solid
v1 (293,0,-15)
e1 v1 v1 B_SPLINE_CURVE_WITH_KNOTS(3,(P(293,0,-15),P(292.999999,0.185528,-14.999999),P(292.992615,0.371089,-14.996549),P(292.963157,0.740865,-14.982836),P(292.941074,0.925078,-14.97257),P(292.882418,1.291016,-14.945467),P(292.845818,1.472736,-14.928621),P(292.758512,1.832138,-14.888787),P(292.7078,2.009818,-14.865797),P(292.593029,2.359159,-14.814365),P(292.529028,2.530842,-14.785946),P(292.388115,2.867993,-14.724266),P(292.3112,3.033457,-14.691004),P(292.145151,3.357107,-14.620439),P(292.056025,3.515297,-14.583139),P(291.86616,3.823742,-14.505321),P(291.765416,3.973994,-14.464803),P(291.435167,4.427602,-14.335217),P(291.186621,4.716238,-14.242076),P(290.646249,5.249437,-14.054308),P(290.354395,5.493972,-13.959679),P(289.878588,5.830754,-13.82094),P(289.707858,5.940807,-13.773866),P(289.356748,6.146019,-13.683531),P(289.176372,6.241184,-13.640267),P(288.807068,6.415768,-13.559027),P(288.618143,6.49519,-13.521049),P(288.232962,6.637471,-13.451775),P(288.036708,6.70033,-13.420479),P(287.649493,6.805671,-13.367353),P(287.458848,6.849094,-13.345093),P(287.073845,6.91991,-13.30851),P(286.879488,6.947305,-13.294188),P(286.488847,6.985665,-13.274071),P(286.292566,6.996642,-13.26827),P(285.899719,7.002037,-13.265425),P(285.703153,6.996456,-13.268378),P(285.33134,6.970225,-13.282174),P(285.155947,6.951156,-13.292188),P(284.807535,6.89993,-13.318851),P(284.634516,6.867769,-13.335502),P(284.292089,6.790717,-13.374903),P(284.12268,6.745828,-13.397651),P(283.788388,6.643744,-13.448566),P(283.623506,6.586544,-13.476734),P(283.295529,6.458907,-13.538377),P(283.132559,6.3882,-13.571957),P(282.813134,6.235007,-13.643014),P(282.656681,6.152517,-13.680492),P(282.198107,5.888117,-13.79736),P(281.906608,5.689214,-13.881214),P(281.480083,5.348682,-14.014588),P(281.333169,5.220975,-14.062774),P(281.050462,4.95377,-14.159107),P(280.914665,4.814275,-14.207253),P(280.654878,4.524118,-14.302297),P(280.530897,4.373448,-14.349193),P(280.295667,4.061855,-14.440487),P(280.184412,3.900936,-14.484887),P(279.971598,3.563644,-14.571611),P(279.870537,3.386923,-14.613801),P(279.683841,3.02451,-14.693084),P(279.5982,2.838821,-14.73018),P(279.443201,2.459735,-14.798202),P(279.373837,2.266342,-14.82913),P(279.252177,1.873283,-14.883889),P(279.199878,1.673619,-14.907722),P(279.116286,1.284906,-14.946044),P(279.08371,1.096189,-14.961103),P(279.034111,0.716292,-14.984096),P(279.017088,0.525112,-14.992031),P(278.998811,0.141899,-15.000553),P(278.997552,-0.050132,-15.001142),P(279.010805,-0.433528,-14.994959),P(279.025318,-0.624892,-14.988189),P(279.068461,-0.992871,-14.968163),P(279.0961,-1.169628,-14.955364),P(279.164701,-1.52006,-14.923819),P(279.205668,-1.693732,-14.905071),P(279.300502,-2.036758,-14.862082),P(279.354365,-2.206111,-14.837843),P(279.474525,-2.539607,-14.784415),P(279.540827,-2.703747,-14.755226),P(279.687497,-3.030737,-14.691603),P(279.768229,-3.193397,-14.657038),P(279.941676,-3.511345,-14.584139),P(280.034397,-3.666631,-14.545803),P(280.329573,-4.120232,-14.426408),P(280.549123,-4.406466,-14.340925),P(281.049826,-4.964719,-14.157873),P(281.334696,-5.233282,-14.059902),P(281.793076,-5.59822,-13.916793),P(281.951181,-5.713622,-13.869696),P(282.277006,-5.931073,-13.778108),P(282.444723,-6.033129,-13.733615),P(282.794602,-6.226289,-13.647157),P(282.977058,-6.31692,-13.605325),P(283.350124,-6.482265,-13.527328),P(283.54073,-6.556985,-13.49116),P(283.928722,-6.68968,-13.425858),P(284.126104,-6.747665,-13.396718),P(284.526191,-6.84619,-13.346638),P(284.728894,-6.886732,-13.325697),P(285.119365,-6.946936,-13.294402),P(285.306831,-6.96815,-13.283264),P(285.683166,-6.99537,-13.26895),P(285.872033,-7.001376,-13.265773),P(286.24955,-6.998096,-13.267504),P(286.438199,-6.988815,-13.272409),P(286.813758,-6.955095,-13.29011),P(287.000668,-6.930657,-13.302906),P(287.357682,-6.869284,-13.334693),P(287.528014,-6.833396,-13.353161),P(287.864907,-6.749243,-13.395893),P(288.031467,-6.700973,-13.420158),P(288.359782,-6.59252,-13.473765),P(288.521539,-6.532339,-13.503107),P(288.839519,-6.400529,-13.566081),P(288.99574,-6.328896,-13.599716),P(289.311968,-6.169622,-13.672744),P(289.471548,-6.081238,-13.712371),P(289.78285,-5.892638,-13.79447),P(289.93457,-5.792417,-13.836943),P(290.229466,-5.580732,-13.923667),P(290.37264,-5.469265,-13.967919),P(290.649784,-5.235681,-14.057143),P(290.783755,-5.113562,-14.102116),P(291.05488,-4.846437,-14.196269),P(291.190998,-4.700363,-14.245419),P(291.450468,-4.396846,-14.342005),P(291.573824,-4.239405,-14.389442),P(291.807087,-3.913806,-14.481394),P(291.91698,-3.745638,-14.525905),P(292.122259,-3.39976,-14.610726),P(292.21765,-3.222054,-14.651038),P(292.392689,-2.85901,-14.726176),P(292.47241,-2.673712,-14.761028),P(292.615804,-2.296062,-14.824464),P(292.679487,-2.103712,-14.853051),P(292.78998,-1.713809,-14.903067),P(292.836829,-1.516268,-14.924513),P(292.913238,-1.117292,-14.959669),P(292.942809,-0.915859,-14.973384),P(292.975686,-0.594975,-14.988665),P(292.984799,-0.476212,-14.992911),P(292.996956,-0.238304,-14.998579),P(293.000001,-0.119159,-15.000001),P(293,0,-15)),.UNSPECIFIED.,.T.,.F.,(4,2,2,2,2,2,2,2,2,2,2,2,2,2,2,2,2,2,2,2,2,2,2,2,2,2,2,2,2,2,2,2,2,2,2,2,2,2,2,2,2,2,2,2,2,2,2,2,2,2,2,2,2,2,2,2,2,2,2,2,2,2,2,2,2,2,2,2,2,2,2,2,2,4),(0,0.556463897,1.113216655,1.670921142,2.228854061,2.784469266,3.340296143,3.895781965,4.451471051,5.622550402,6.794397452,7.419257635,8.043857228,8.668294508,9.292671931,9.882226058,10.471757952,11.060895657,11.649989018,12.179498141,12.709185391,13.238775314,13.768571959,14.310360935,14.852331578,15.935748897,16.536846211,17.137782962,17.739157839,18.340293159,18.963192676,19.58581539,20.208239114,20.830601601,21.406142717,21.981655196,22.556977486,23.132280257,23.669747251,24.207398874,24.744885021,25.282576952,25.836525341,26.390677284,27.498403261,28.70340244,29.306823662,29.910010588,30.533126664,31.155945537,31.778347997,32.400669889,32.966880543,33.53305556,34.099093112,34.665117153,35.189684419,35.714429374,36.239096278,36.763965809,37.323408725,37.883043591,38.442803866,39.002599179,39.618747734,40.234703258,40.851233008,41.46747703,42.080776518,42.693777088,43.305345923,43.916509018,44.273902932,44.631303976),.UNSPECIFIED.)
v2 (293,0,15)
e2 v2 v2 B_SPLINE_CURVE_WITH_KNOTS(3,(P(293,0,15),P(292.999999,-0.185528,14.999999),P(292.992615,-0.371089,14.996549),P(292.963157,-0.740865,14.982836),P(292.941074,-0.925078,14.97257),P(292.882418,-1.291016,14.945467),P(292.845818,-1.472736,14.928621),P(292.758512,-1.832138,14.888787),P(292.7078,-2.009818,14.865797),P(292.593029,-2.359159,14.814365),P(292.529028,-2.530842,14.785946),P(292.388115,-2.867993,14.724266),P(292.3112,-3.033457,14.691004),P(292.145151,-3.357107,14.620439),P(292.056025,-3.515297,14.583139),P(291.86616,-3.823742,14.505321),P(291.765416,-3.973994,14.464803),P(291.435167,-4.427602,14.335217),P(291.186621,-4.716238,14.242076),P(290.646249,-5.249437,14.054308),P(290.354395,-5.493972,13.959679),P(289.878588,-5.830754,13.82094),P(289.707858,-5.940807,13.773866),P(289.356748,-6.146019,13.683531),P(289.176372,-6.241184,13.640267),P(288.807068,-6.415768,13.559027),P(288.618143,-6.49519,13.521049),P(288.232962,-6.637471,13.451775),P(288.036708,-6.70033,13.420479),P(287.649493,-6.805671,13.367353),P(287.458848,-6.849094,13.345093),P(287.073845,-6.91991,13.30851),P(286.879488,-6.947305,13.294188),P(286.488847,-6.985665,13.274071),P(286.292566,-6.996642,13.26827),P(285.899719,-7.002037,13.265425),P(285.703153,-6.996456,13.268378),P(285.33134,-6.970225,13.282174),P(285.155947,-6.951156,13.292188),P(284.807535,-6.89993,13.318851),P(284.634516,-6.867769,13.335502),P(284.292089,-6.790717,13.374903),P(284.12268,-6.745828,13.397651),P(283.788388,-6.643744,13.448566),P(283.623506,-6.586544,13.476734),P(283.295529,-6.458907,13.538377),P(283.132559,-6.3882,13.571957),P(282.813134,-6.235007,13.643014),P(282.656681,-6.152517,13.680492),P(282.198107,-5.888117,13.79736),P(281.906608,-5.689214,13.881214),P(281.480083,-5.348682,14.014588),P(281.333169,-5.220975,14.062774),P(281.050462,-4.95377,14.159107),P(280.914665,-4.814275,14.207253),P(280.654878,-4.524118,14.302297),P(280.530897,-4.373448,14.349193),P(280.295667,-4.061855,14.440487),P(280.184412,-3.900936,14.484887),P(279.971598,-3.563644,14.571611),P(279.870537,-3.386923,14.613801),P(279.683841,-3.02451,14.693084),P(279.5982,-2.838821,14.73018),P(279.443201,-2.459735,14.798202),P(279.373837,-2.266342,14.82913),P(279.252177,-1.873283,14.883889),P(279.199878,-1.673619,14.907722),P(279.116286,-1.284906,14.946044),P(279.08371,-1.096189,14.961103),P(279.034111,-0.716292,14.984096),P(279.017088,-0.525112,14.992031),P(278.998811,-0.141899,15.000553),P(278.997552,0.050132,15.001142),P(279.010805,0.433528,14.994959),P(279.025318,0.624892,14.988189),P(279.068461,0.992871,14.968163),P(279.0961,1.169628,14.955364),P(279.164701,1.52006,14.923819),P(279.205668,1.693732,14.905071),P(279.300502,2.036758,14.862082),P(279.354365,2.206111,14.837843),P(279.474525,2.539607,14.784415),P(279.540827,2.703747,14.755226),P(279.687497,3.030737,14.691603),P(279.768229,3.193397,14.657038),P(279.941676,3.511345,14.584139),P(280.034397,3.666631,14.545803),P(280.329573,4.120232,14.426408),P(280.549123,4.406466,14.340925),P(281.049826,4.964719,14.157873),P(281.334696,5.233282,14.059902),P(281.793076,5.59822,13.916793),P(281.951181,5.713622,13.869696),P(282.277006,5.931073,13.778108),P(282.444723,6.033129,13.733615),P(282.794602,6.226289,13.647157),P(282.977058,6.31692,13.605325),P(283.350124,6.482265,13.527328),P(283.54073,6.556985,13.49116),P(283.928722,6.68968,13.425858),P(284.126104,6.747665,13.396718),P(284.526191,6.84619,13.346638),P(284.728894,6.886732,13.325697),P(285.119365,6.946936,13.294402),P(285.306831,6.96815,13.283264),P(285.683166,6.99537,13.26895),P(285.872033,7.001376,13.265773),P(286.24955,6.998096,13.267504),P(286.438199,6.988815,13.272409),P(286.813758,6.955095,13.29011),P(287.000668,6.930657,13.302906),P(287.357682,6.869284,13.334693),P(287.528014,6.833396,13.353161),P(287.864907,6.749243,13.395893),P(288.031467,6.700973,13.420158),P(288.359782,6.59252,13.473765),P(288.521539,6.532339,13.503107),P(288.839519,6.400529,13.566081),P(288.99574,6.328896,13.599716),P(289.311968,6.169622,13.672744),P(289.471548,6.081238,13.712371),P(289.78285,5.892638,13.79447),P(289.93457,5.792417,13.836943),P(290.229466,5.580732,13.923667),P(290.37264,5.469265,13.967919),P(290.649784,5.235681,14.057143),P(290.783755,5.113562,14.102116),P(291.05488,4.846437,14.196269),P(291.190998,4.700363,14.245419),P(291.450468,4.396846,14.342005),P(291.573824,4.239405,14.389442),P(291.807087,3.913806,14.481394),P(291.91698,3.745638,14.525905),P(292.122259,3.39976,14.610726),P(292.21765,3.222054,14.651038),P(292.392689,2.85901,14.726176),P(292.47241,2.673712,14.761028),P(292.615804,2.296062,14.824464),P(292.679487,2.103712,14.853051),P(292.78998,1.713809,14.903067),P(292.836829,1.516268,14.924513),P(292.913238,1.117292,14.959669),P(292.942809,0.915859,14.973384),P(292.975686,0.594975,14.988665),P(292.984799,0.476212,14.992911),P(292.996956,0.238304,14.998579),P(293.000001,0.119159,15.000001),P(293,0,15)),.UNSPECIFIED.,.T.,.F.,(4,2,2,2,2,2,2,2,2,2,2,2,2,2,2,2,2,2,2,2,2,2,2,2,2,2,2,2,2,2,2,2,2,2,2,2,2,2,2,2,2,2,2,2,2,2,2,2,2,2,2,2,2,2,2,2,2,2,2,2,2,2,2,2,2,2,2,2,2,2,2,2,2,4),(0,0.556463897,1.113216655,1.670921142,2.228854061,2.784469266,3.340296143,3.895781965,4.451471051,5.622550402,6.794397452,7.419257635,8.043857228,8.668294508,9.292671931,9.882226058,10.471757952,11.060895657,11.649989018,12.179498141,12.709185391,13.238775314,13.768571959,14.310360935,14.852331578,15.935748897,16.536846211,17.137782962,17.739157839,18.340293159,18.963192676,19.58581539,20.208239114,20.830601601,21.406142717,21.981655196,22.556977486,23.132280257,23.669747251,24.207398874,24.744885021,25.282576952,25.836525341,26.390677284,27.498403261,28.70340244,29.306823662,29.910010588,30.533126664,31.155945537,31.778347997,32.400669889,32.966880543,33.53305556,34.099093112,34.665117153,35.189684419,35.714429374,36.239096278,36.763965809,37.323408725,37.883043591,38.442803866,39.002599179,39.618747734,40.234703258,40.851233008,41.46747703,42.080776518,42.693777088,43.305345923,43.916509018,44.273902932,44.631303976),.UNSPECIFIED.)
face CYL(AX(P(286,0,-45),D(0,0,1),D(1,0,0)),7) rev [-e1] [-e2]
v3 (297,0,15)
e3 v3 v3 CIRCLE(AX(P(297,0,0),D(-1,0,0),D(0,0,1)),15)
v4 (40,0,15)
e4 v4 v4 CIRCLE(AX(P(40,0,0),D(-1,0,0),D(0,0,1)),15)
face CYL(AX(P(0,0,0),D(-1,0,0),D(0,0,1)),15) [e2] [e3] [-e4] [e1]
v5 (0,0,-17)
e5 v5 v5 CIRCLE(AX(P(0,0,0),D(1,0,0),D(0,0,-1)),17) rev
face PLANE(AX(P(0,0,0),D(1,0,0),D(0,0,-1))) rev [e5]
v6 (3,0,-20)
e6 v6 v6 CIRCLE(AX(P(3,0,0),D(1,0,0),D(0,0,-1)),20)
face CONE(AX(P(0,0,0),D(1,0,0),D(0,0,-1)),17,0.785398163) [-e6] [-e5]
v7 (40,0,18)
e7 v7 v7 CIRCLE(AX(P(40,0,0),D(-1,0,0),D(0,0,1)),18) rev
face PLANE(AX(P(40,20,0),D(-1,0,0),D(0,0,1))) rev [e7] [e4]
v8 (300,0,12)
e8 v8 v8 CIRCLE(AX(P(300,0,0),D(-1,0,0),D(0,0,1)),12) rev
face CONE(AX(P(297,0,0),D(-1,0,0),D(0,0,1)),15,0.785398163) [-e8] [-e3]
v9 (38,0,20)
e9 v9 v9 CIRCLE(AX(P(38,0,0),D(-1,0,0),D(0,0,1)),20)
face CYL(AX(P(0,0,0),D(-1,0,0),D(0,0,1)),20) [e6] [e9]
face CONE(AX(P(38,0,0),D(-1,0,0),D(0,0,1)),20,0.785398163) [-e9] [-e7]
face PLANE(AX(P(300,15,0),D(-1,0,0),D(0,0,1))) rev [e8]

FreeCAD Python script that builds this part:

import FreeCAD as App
import Part
import Sketcher


def edges_at(feature, points):
    """Names of the edges that pass closest to the given points."""
    edges = feature.Shape.Edges
    near = lambda p: min(range(len(edges)), key=lambda i: edges[i].distToShape(Part.Vertex(*p))[0])
    return sorted({f"Edge{near(p) + 1}" for p in points})


def add_polygon(sketch, points):
    """Adds a closed chain of lines whose ends are joined by coincident constraints."""
    first, n = sketch.GeometryCount, len(points)
    for a, b in zip(points, points[1:] + points[:1]):
        sketch.addGeometry(Part.LineSegment(App.Vector(*a, 0), App.Vector(*b, 0)), False)
    for i in range(n):
        sketch.addConstraint(Sketcher.Constraint("Coincident", first + i, 2, first + (i + 1) % n, 1))

doc = App.newDocument("Part")
params = doc.addObject("Spreadsheet::Sheet", "Params")
for row, (alias, value) in enumerate([
    ("sketch1_width", "300 mm"),
    ("sketch1_width2", "260 mm"),
    ("sketch1_height", "20 mm"),
    ("sketch1_height2", "15 mm"),
    ("revolution_angle", "360 deg"),
    ("chamfer_size", "3 mm"),
    ("chamfer2_size", "3 mm"),
    ("sketch2_diameter", "14 mm"),
    ("pocket1_length", "90 mm"),
    ("chamfer3_size", "2 mm"),
], start=1):
    params.set(f"A{row}", alias)
    params.set(f"B{row}", "=" + value)
    params.setAlias(f"B{row}", alias)

body = doc.addObject("PartDesign::Body", "Body")

# Sketch on XY plane
sketch1 = doc.addObject("Sketcher::SketchObject", "Sketch")
body.addObject(sketch1)
sketch1.AttachmentSupport = (doc.XY_Plane, [""])
sketch1.MapMode = "FlatFace"
add_polygon(sketch1, [(0, 20), (0, 0), (300, 0), (300, 15), (40, 15), (40, 20)])  # lines 0-5
sketch1.addConstraint(Sketcher.Constraint("Vertical", 0))
sketch1.addConstraint(Sketcher.Constraint("Horizontal", 1))
sketch1.addConstraint(Sketcher.Constraint("Vertical", 2))
sketch1.addConstraint(Sketcher.Constraint("Horizontal", 3))
sketch1.addConstraint(Sketcher.Constraint("Vertical", 4))
sketch1.addConstraint(Sketcher.Constraint("Horizontal", 5))
sketch1.addConstraint(Sketcher.Constraint("Coincident", 0, 2, -1, 1))
sketch1.addConstraint(Sketcher.Constraint("DistanceX", 1, 1, 1, 2, 300.0))
sketch1.addConstraint(Sketcher.Constraint("DistanceX", 3, 2, 3, 1, 260.0))
sketch1.addConstraint(Sketcher.Constraint("DistanceY", 0, 2, 0, 1, 20.0))
sketch1.addConstraint(Sketcher.Constraint("DistanceY", 2, 1, 2, 2, 15.0))
sketch1.setExpression("Constraints[13]", "Params.sketch1_width")
sketch1.setExpression("Constraints[14]", "Params.sketch1_width2")
sketch1.setExpression("Constraints[15]", "Params.sketch1_height")
sketch1.setExpression("Constraints[16]", "Params.sketch1_height2")
revolution = doc.addObject("PartDesign::Revolution", "Revolution")
body.addObject(revolution)
revolution.Profile = sketch1
revolution.ReferenceAxis = (sketch1, ["H_Axis"])
revolution.setExpression("Angle", "Params.revolution_angle")
doc.recompute()

chamfer = doc.addObject("PartDesign::Chamfer", "Chamfer")
body.addObject(chamfer)
chamfer.Base = (revolution, edges_at(revolution, [(0, 0, -20)]))
chamfer.setExpression("Size", "Params.chamfer_size")
doc.recompute()

chamfer2 = doc.addObject("PartDesign::Chamfer", "Chamfer001")
body.addObject(chamfer2)
chamfer2.Base = (chamfer, edges_at(chamfer, [(300, 0, -15)]))
chamfer2.setExpression("Size", "Params.chamfer2_size")

# Sketch on XY plane
sketch2 = doc.addObject("Sketcher::SketchObject", "Sketch001")
body.addObject(sketch2)
sketch2.AttachmentSupport = (doc.XY_Plane, [""])
sketch2.MapMode = "FlatFace"
sketch2.addGeometry(Part.Circle(App.Vector(286, 0, 0), App.Vector(0, 0, 1), 7), False)
sketch2.addConstraint(Sketcher.Constraint("PointOnObject", 0, 3, -1))
sketch2.addConstraint(Sketcher.Constraint("Diameter", 0, 14.0))
sketch2.addConstraint(Sketcher.Constraint("DistanceX", -1, 1, 0, 3, 286.0))
sketch2.setExpression("Constraints[1]", "Params.sketch2_diameter")
pocket1 = doc.addObject("PartDesign::Pocket", "Pocket")
body.addObject(pocket1)
pocket1.Profile = sketch2
pocket1.setExpression("Length", "Params.pocket1_length")
pocket1.Midplane = True
doc.recompute()

chamfer3 = doc.addObject("PartDesign::Chamfer", "Chamfer002")
body.addObject(chamfer3)
chamfer3.Base = (pocket1, edges_at(pocket1, [(40, 0, -20)]))
chamfer3.setExpression("Size", "Params.chamfer3_size")

doc.recompute()
